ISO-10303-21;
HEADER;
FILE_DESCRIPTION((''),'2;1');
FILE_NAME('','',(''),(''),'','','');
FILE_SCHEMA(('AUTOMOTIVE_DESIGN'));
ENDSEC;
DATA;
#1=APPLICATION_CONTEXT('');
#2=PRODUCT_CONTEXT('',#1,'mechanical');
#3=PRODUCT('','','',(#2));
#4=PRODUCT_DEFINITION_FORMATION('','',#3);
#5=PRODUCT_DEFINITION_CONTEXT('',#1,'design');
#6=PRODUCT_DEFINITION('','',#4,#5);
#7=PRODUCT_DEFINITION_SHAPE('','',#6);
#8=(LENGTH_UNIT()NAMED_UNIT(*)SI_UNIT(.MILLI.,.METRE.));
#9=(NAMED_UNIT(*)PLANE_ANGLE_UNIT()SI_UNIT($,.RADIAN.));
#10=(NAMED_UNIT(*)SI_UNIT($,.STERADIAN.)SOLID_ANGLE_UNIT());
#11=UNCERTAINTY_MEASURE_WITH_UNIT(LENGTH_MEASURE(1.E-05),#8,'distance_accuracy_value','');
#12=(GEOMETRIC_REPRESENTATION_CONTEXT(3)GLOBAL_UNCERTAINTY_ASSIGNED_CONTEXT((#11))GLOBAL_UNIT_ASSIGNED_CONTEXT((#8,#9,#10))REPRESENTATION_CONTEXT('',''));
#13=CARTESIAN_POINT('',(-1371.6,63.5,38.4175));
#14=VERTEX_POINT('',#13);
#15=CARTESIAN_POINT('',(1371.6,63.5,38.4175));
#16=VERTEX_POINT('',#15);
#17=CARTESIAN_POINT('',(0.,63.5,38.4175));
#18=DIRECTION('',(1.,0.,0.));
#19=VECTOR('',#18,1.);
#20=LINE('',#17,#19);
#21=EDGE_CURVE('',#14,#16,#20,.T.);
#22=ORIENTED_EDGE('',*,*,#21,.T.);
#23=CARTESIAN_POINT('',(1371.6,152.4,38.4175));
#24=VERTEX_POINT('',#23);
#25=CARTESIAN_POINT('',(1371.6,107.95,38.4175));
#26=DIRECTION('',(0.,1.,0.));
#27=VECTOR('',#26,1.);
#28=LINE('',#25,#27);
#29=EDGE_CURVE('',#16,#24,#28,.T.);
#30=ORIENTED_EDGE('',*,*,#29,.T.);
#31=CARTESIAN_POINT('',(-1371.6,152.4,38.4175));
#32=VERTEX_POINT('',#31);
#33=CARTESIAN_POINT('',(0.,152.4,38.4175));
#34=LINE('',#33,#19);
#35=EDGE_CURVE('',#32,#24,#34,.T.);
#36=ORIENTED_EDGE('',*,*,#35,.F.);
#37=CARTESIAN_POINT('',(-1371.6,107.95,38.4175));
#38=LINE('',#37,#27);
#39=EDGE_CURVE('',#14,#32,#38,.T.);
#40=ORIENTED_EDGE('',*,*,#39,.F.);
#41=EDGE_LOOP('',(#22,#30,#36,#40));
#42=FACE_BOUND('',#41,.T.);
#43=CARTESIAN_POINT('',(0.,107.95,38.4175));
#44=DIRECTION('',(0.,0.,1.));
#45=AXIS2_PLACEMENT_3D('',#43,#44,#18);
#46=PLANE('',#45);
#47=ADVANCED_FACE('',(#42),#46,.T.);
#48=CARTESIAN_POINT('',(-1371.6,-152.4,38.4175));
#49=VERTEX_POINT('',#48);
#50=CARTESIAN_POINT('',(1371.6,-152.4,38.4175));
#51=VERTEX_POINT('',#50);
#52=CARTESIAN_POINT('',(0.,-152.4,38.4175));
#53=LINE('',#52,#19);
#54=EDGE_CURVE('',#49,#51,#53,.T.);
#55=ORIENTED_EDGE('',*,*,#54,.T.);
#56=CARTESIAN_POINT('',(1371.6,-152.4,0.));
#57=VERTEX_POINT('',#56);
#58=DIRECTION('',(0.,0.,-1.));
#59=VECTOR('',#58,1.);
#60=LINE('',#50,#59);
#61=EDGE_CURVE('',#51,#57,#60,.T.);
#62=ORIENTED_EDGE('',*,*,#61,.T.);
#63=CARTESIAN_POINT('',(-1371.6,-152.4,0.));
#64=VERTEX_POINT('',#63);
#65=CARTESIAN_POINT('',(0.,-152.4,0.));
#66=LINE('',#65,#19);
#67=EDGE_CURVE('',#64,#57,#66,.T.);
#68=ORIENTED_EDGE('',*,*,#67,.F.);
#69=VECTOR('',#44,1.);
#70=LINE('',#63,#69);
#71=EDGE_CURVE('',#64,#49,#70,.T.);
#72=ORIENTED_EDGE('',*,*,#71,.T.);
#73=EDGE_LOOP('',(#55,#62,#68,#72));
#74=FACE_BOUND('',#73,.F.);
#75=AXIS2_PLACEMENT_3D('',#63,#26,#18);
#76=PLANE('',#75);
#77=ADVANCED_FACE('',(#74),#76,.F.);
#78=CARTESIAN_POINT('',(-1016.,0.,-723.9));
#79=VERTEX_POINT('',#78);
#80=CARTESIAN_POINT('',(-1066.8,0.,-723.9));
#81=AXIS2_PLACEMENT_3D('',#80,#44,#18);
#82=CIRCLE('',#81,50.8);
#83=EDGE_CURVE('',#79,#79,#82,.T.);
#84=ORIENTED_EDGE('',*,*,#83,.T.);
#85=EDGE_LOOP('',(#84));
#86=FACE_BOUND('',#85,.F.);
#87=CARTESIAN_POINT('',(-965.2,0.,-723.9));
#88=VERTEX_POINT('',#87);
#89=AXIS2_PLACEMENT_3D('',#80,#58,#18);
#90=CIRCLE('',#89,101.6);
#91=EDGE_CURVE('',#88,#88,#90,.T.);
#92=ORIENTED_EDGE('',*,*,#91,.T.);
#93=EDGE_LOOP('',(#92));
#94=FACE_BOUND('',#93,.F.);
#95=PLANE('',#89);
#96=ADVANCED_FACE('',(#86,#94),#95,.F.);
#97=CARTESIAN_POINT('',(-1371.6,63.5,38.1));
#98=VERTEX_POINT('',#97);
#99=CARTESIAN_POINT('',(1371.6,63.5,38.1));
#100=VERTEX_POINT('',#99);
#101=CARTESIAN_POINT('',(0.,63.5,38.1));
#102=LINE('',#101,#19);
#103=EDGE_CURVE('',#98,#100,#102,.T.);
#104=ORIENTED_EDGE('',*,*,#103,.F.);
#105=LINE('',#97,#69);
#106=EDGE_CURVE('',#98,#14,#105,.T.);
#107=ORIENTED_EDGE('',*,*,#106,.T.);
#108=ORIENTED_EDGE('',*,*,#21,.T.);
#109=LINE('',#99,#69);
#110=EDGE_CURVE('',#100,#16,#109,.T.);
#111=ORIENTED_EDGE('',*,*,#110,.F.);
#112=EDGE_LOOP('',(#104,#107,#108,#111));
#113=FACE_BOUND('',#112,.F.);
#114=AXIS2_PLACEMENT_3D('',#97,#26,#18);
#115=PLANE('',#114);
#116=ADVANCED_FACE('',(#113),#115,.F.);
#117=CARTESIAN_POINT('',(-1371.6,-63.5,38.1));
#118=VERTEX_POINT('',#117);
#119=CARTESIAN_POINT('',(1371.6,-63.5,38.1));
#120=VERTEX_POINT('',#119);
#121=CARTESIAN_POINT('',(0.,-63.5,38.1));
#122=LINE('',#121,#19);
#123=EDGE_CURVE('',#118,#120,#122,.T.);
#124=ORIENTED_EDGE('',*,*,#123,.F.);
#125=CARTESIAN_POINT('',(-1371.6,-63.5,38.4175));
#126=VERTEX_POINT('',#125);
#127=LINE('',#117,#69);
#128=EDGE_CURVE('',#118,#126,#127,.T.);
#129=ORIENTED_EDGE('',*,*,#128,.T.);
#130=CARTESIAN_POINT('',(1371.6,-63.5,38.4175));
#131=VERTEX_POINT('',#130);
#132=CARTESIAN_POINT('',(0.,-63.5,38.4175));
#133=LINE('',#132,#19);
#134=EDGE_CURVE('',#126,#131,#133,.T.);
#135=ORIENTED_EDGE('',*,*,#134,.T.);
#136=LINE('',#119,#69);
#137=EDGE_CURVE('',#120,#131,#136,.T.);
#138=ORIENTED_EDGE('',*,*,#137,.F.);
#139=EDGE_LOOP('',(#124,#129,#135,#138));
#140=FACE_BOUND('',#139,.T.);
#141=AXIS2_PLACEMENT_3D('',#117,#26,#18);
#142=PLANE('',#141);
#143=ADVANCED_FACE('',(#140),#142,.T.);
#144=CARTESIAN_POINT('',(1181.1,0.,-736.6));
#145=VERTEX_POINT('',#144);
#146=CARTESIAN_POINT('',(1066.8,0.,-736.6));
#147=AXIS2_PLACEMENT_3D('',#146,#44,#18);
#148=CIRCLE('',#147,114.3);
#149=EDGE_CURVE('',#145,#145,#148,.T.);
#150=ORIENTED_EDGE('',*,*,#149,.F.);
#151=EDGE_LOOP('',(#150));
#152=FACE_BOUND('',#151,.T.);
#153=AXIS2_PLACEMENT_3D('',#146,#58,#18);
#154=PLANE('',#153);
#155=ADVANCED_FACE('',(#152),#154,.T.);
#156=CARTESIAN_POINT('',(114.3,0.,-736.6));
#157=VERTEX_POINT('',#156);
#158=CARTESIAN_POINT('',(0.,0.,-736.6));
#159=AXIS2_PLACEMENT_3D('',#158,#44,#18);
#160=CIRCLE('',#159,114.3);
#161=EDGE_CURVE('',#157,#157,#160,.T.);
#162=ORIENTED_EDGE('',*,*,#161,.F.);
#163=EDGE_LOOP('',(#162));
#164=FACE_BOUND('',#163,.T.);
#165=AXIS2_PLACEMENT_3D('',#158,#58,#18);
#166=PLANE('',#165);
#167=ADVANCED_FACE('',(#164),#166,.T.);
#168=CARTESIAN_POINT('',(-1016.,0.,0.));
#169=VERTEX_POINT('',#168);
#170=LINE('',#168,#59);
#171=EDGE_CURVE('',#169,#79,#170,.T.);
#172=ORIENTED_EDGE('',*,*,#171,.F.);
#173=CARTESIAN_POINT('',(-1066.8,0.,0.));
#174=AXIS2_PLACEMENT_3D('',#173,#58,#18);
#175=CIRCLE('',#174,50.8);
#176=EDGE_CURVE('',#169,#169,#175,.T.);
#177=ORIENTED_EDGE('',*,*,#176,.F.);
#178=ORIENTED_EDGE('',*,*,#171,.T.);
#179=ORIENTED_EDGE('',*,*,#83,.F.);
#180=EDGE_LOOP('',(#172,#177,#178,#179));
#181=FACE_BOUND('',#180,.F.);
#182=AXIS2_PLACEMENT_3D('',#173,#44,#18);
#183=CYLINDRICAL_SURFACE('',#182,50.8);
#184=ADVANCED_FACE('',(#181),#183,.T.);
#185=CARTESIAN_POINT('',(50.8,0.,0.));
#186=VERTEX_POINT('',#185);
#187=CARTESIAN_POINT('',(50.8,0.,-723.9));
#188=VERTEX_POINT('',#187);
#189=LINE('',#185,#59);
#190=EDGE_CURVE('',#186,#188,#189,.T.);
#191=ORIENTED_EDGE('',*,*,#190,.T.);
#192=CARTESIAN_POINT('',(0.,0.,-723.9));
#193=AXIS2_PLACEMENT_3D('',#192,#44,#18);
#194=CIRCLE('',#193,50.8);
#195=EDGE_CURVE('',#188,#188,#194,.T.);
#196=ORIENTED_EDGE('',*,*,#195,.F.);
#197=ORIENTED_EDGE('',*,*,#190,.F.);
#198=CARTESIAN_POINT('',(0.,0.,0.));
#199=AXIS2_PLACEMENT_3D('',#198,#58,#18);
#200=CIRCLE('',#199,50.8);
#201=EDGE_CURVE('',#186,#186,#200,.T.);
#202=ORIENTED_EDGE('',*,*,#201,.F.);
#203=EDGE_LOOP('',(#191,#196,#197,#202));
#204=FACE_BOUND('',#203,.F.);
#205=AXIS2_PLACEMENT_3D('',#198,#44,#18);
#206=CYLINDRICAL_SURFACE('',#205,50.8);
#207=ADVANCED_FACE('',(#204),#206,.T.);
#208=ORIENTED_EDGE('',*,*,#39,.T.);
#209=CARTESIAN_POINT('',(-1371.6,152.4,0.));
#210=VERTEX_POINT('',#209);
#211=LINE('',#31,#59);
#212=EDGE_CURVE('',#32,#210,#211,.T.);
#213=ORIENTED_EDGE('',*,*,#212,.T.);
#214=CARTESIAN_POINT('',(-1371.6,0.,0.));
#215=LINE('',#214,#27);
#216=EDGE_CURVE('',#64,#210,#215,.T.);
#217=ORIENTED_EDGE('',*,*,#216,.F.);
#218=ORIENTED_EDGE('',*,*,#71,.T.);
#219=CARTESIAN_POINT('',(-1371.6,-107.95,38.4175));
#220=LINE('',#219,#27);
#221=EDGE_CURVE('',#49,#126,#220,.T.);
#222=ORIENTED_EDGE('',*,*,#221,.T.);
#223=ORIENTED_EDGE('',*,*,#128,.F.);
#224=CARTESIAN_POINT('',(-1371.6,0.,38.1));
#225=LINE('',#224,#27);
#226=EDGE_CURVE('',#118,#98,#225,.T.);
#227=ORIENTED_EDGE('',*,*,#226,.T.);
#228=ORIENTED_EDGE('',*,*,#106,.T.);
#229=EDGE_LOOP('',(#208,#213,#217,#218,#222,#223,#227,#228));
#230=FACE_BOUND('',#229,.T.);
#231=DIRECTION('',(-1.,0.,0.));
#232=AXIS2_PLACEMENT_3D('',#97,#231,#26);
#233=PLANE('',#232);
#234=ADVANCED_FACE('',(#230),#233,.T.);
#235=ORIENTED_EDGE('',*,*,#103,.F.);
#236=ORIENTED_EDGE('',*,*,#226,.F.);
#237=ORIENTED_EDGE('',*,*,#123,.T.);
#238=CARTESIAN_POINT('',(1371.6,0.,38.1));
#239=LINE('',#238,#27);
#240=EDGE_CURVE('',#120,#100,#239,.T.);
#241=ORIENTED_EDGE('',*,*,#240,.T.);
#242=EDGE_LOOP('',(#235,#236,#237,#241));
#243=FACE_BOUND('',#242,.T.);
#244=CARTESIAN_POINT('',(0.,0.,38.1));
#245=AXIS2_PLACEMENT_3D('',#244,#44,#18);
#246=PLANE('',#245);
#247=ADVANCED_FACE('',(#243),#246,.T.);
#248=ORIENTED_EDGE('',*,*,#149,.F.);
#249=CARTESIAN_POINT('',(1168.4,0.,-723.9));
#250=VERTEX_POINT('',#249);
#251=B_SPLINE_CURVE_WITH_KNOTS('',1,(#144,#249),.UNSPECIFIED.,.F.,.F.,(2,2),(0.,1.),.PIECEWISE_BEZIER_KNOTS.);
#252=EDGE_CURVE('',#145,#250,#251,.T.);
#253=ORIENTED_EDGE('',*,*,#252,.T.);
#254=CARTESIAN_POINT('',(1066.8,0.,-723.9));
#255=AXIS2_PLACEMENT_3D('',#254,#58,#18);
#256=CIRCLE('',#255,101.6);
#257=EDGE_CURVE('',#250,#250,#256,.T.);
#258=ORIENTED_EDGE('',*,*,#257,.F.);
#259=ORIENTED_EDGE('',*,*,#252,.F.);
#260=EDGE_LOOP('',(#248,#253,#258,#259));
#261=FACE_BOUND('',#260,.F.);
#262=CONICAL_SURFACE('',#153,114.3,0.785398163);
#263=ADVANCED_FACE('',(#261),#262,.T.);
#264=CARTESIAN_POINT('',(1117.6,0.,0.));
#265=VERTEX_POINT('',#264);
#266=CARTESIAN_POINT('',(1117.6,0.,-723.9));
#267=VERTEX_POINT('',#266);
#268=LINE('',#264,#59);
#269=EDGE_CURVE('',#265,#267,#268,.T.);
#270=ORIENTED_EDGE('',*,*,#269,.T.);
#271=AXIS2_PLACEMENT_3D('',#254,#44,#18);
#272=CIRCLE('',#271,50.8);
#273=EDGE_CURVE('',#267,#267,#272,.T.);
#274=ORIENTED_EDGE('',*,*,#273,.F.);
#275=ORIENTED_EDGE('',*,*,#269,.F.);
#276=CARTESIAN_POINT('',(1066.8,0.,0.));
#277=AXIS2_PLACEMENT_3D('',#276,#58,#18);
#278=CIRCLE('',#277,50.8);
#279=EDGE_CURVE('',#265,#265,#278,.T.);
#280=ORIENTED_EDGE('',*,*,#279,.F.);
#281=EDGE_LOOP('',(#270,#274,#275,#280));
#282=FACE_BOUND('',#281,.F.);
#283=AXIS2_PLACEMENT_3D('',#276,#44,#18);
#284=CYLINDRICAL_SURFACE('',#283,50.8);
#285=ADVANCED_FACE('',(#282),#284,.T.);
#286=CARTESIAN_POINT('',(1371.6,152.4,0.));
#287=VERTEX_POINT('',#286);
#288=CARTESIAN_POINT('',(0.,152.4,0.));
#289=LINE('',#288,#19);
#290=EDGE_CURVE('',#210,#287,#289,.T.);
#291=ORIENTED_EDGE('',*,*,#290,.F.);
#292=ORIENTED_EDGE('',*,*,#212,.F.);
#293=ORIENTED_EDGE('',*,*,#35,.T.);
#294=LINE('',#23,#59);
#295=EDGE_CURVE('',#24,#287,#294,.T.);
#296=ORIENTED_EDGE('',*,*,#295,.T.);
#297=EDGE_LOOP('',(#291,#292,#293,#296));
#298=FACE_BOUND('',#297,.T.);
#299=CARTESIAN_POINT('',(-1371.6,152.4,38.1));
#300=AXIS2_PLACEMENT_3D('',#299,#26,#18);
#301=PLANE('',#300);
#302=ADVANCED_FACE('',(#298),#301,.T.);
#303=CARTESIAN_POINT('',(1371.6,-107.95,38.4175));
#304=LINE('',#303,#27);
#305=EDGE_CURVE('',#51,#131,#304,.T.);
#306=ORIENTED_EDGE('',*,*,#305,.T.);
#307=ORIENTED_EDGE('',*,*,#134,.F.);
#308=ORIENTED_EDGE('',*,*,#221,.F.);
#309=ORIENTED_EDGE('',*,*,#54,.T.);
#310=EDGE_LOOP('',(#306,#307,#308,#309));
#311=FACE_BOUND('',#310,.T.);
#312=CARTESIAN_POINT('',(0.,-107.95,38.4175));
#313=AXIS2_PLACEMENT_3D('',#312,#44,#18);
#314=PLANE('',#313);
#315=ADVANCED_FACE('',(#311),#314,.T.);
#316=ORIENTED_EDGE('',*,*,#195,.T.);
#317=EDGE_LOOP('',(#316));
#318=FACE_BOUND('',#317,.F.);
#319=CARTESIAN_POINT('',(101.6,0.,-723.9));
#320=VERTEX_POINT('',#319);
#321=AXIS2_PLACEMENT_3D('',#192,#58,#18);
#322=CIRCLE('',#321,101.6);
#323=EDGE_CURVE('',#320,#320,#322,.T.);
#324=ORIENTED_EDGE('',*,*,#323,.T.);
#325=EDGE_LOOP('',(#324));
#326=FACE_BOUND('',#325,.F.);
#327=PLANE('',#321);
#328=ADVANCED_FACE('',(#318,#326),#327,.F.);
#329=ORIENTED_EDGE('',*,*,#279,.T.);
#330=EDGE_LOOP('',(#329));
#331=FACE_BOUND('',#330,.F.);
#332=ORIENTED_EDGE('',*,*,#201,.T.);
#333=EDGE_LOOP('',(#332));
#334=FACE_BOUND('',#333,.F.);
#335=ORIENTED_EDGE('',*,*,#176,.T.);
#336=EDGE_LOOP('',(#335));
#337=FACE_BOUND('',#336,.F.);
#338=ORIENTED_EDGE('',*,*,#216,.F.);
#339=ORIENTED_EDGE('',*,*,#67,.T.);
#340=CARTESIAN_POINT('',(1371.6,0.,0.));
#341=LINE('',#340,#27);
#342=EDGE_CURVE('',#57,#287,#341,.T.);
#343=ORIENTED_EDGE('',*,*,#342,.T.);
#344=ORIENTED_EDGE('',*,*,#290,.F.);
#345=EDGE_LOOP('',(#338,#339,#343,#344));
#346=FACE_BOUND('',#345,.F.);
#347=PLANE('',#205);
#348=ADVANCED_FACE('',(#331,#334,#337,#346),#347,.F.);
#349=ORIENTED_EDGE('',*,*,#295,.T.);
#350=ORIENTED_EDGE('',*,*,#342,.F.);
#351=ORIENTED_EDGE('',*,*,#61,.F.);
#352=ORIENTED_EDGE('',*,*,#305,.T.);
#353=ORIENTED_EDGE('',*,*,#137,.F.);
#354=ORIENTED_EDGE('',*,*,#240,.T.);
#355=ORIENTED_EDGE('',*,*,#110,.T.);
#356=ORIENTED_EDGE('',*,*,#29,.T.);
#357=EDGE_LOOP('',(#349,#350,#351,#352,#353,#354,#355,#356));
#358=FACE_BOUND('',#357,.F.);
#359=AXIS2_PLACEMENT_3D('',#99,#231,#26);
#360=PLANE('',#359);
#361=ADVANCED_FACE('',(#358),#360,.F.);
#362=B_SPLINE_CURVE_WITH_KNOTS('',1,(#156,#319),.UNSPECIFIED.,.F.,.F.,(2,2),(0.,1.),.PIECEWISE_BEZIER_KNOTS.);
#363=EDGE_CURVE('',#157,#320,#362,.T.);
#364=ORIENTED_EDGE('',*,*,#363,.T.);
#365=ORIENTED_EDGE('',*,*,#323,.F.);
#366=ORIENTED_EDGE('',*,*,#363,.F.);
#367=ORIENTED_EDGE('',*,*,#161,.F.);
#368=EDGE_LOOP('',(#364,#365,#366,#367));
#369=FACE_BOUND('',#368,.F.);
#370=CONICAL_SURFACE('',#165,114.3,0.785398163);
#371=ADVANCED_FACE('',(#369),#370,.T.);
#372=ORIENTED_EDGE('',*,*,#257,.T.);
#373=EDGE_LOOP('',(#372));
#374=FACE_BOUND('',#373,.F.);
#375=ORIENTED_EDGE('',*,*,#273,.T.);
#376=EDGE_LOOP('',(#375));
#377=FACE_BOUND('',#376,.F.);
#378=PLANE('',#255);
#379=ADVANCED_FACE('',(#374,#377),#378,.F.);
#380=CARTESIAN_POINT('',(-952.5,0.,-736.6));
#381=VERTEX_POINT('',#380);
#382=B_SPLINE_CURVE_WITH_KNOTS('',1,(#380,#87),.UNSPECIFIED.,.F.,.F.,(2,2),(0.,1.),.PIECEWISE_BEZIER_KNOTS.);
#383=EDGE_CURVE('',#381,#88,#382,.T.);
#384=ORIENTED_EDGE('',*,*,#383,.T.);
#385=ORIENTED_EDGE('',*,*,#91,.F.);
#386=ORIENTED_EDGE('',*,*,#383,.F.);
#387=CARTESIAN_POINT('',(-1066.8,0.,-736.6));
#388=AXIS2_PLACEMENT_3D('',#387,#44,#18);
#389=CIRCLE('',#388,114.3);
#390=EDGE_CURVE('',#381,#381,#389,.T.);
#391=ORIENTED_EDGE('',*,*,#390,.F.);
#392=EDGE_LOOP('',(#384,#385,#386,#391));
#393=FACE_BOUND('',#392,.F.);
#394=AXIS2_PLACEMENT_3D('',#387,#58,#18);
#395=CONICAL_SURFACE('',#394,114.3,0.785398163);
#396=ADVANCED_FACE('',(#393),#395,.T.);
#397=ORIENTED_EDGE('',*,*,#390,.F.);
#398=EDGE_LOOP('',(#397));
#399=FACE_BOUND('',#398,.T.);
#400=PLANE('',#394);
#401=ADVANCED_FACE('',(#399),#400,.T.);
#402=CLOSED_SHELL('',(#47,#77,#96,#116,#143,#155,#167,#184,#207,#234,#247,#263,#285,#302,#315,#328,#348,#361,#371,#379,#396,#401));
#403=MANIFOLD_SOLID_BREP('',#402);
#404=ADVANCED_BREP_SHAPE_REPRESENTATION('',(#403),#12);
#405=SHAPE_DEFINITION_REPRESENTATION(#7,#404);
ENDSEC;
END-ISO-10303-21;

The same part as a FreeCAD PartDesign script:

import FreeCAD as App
import Part
import Sketcher
from FreeCAD import Vector
Q = App.Units.Quantity

doc = App.newDocument("Part")
params = doc.addObject("Spreadsheet::Sheet", "Params")
for row, (alias, value) in enumerate([
    ("sketch1_width", "108 in"),
    ("sketch1_height", "12 in"),
    ("pad1_length", "1.5 in"),
    ("sketch2_diameter", "4 in"),
    ("pad2_length", "29 in"),
    ("sketch3_diameter", "9 in"),
    ("pad3_length", "0.5 in"),
    ("pad3_taper", "-45 deg"),
    ("sketch4_width", "108 in"),
    ("sketch4_height", "3.5 in"),
    ("pad4_length", "0.0125 in"),
], start=1):
    params.set(f"A{row}", alias)
    params.set(f"B{row}", "=" + value)
    params.setAlias(f"B{row}", alias)

body = doc.addObject("PartDesign::Body", "Body")

# Sketch on XY plane
sketch1 = body.newObject("Sketcher::SketchObject", "Sketch")
sketch1.AttachmentSupport = (doc.getObject("XY_Plane"), [""])
sketch1.MapMode = "FlatFace"
sketch1.addGeometry(Part.LineSegment(Vector(-1371.6, 152.4, 0), Vector(-1371.6, -152.4, 0)), False)
sketch1.addGeometry(Part.LineSegment(Vector(-1371.6, -152.4, 0), Vector(1371.6, -152.4, 0)), False)
sketch1.addGeometry(Part.LineSegment(Vector(1371.6, -152.4, 0), Vector(1371.6, 152.4, 0)), False)
sketch1.addGeometry(Part.LineSegment(Vector(1371.6, 152.4, 0), Vector(-1371.6, 152.4, 0)), False)
sketch1.addConstraint(Sketcher.Constraint("Coincident", 0, 2, 1, 1))
sketch1.addConstraint(Sketcher.Constraint("Coincident", 1, 2, 2, 1))
sketch1.addConstraint(Sketcher.Constraint("Coincident", 2, 2, 3, 1))
sketch1.addConstraint(Sketcher.Constraint("Coincident", 3, 2, 0, 1))
sketch1.addConstraint(Sketcher.Constraint("Vertical", 0))
sketch1.addConstraint(Sketcher.Constraint("Horizontal", 1))
sketch1.addConstraint(Sketcher.Constraint("Vertical", 2))
sketch1.addConstraint(Sketcher.Constraint("Horizontal", 3))
sketch1.addConstraint(Sketcher.Constraint("Symmetric", 0, 2, 2, 2, -1, 1))
sketch1.addConstraint(Sketcher.Constraint("DistanceX", 1, 1, 1, 2, Q("108 in")))
sketch1.addConstraint(Sketcher.Constraint("DistanceY", 0, 2, 0, 1, Q("12 in")))
sketch1.setExpression("Constraints[9]", "Params.sketch1_width")
sketch1.setExpression("Constraints[10]", "Params.sketch1_height")
pad1 = body.newObject("PartDesign::Pad", "Pad")
pad1.Profile = sketch1
pad1.setExpression("Length", "Params.pad1_length")

# Sketch on XY plane
sketch2 = body.newObject("Sketcher::SketchObject", "Sketch001")
sketch2.AttachmentSupport = (doc.getObject("XY_Plane"), [""])
sketch2.MapMode = "FlatFace"
sketch2.addGeometry(Part.Circle(Vector(-1066.8, 0, 0), Vector(0, 0, 1), 50.8), False)
sketch2.addGeometry(Part.Circle(Vector(1066.8, 0, 0), Vector(0, 0, 1), 50.8), False)
sketch2.addGeometry(Part.Circle(Vector(0, 0, 0), Vector(0, 0, 1), 50.8), False)
sketch2.addConstraint(Sketcher.Constraint("Coincident", 2, 3, -1, 1))
sketch2.addConstraint(Sketcher.Constraint("Equal", 0, 1))
sketch2.addConstraint(Sketcher.Constraint("Equal", 1, 2))
sketch2.addConstraint(Sketcher.Constraint("Symmetric", 0, 3, 1, 3, -1, 1))
sketch2.addConstraint(Sketcher.Constraint("PointOnObject", 0, 3, -1))
sketch2.addConstraint(Sketcher.Constraint("Diameter", 0, Q("4 in")))
sketch2.addConstraint(Sketcher.Constraint("DistanceX", 0, 3, -1, 1, Q("42 in")))
sketch2.setExpression("Constraints[5]", "Params.sketch2_diameter")
pad2 = body.newObject("PartDesign::Pad", "Pad001")
pad2.Profile = sketch2
pad2.setExpression("Length", "Params.pad2_length")
pad2.Reversed = True

# Sketch on XY plane
sketch3 = body.newObject("Sketcher::SketchObject", "Sketch002")
sketch3.AttachmentSupport = (doc.getObject("XY_Plane"), [""])
sketch3.MapMode = "FlatFace"
sketch3.AttachmentOffset = App.Placement(Vector(0, 0, -29 * 25.4), App.Rotation())
sketch3.addGeometry(Part.Circle(Vector(-1066.8, 0, 0), Vector(0, 0, 1), 114.3), False)
sketch3.addGeometry(Part.Circle(Vector(1066.8, 0, 0), Vector(0, 0, 1), 114.3), False)
sketch3.addGeometry(Part.Circle(Vector(0, 0, 0), Vector(0, 0, 1), 114.3), False)
sketch3.addConstraint(Sketcher.Constraint("Coincident", 2, 3, -1, 1))
sketch3.addConstraint(Sketcher.Constraint("Equal", 0, 1))
sketch3.addConstraint(Sketcher.Constraint("Equal", 1, 2))
sketch3.addConstraint(Sketcher.Constraint("Symmetric", 0, 3, 1, 3, -1, 1))
sketch3.addConstraint(Sketcher.Constraint("PointOnObject", 0, 3, -1))
sketch3.addConstraint(Sketcher.Constraint("Diameter", 0, Q("9 in")))
sketch3.addConstraint(Sketcher.Constraint("DistanceX", 0, 3, -1, 1, Q("42 in")))
sketch3.setExpression("Constraints[5]", "Params.sketch3_diameter")
pad3 = body.newObject("PartDesign::Pad", "Pad002")
pad3.Profile = sketch3
pad3.setExpression("Length", "Params.pad3_length")
pad3.setExpression("TaperAngle", "Params.pad3_taper")

# Sketch on XY plane
sketch4 = body.newObject("Sketcher::SketchObject", "Sketch003")
sketch4.AttachmentSupport = (doc.getObject("XY_Plane"), [""])
sketch4.MapMode = "FlatFace"
sketch4.AttachmentOffset = App.Placement(Vector(0, 0, 1.5 * 25.4), App.Rotation())
sketch4.addGeometry(Part.LineSegment(Vector(-1371.6, 152.4, 0), Vector(-1371.6, 63.5, 0)), False)
sketch4.addGeometry(Part.LineSegment(Vector(-1371.6, 63.5, 0), Vector(1371.6, 63.5, 0)), False)
sketch4.addGeometry(Part.LineSegment(Vector(1371.6, 63.5, 0), Vector(1371.6, 152.4, 0)), False)
sketch4.addGeometry(Part.LineSegment(Vector(1371.6, 152.4, 0), Vector(-1371.6, 152.4, 0)), False)
sketch4.addGeometry(Part.LineSegment(Vector(-1371.6, -63.5, 0), Vector(-1371.6, -152.4, 0)), False)
sketch4.addGeometry(Part.LineSegment(Vector(-1371.6, -152.4, 0), Vector(1371.6, -152.4, 0)), False)
sketch4.addGeometry(Part.LineSegment(Vector(1371.6, -152.4, 0), Vector(1371.6, -63.5, 0)), False)
sketch4.addGeometry(Part.LineSegment(Vector(1371.6, -63.5, 0), Vector(-1371.6, -63.5, 0)), False)
sketch4.addConstraint(Sketcher.Constraint("Coincident", 0, 2, 1, 1))
sketch4.addConstraint(Sketcher.Constraint("Coincident", 1, 2, 2, 1))
sketch4.addConstraint(Sketcher.Constraint("Coincident", 2, 2, 3, 1))
sketch4.addConstraint(Sketcher.Constraint("Coincident", 3, 2, 0, 1))
sketch4.addConstraint(Sketcher.Constraint("Coincident", 4, 2, 5, 1))
sketch4.addConstraint(Sketcher.Constraint("Coincident", 5, 2, 6, 1))
sketch4.addConstraint(Sketcher.Constraint("Coincident", 6, 2, 7, 1))
sketch4.addConstraint(Sketcher.Constraint("Coincident", 7, 2, 4, 1))
sketch4.addConstraint(Sketcher.Constraint("Vertical", 0))
sketch4.addConstraint(Sketcher.Constraint("Horizontal", 1))
sketch4.addConstraint(Sketcher.Constraint("Vertical", 2))
sketch4.addConstraint(Sketcher.Constraint("Horizontal", 3))
sketch4.addConstraint(Sketcher.Constraint("Vertical", 4))
sketch4.addConstraint(Sketcher.Constraint("Horizontal", 5))
sketch4.addConstraint(Sketcher.Constraint("Vertical", 6))
sketch4.addConstraint(Sketcher.Constraint("Horizontal", 7))
sketch4.addConstraint(Sketcher.Constraint("Symmetric", 2, 2, 4, 2, -1, 1))
sketch4.addConstraint(Sketcher.Constraint("Symmetric", 0, 2, 6, 2, -1, 1))
sketch4.addConstraint(Sketcher.Constraint("Vertical", 3, 2, 4, 2))
sketch4.addConstraint(Sketcher.Constraint("DistanceX", 1, 1, 1, 2, Q("108 in")))
sketch4.addConstraint(Sketcher.Constraint("DistanceY", 0, 2, 0, 1, Q("3.5 in")))
sketch4.addConstraint(Sketcher.Constraint("DistanceY", -1, 1, 2, 2, Q("6 in")))
sketch4.setExpression("Constraints[19]", "Params.sketch4_width")
sketch4.setExpression("Constraints[20]", "Params.sketch4_height")
pad4 = body.newObject("PartDesign::Pad", "Pad003")
pad4.Profile = sketch4
pad4.setExpression("Length", "Params.pad4_length")

doc.recompute()
